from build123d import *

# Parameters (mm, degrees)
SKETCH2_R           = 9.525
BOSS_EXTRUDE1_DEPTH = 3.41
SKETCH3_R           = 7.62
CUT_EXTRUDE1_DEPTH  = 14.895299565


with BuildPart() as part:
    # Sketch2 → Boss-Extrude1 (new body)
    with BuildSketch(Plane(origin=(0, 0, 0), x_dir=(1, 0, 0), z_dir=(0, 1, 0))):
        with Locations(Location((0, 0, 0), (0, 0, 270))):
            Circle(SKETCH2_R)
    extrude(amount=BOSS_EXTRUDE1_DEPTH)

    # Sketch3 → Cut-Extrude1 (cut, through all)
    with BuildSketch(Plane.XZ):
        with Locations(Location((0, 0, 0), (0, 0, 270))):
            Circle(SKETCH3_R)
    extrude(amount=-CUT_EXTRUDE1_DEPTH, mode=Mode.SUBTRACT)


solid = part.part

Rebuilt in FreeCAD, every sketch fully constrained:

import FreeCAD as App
import Part
import Sketcher
from FreeCAD import Vector
Q = App.Units.Quantity

doc = App.newDocument("Part")
body = doc.addObject("PartDesign::Body", "Body")

sketch1 = doc.addObject("Sketcher::SketchObject", "Sketch")
body.addObject(sketch1)
sketch1.AttachmentSupport = (doc.XZ_Plane, [""])
sketch1.MapMode = "FlatFace"
sketch1.addGeometry(Part.Circle(Vector(0, 0, 0), Vector(0, 0, 1), 10), False)
sketch1.addConstraint([
    Sketcher.Constraint("Coincident", 0, 3, -1, 1),
    Sketcher.Constraint("Diameter", 0, Q("0.75 in")),
])
pad1 = doc.addObject("PartDesign::Pad", "Pad")
body.addObject(pad1)
pad1.Profile = sketch1
pad1.Length = 3.41
pad1.Reversed = True

sketch2 = doc.addObject("Sketcher::SketchObject", "Sketch001")
body.addObject(sketch2)
sketch2.AttachmentSupport = (doc.XZ_Plane, [""])
sketch2.MapMode = "FlatFace"
sketch2.addGeometry(Part.Circle(Vector(0, 0, 0), Vector(0, 0, 1), 8), False)
sketch2.addConstraint([
    Sketcher.Constraint("Coincident", 0, 3, -1, 1),
    Sketcher.Constraint("Diameter", 0, Q("0.6 in")),
])
pocket1 = doc.addObject("PartDesign::Pocket", "Pocket")
body.addObject(pocket1)
pocket1.Profile = sketch2
pocket1.Type = "ThroughAll"

doc.recompute()
